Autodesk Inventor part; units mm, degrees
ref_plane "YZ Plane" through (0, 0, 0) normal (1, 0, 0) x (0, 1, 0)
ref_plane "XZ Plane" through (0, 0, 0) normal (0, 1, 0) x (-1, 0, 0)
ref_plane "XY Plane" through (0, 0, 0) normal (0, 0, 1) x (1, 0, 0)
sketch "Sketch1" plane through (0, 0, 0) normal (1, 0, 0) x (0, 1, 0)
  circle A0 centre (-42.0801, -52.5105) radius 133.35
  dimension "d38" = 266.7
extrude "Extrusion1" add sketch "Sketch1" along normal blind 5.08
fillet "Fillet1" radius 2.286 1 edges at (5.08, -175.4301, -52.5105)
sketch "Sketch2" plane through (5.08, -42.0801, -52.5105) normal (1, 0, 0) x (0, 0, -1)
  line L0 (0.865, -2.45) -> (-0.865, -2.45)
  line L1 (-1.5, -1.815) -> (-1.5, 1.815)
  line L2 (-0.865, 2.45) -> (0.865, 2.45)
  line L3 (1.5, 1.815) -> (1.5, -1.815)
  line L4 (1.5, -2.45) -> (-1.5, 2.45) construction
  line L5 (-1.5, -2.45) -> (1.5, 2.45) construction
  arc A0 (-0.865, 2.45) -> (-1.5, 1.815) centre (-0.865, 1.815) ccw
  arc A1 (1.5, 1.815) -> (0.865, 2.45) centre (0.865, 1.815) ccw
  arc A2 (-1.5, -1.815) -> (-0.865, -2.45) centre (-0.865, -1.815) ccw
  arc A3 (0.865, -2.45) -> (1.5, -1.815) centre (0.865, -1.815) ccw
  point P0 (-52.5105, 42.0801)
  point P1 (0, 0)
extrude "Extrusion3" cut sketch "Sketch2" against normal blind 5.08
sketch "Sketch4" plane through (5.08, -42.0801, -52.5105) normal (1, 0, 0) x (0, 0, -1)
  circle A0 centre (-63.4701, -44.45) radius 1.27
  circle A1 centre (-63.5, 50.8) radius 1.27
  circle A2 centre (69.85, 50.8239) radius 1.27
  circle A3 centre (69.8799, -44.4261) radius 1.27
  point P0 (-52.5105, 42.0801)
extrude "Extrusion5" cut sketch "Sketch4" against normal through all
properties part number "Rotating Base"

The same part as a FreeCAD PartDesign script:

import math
import FreeCAD as App
import Part
import Sketcher
Q = App.Units.Quantity


def edges_at(feature, points):
    """Names of the edges that pass closest to the given points."""
    edges = feature.Shape.Edges
    near = lambda p: min(range(len(edges)), key=lambda i: edges[i].distToShape(Part.Vertex(*p))[0])
    return sorted({f"Edge{near(p) + 1}" for p in points})

doc = App.newDocument("Part")
body = doc.addObject("PartDesign::Body", "Body")

sketch1 = body.newObject("Sketcher::SketchObject", "Sketch")
sketch1.AttachmentSupport = (doc.getObject("YZ_Plane"), [""])
sketch1.MapMode = "FlatFace"
sketch1.addGeometry(Part.Circle(App.Vector(-42, -53, 0), App.Vector(0, 0, 1), 133), False)
sketch1.addConstraint(Sketcher.Constraint("Diameter", 0, Q("10.5 in")))
sketch1.addConstraint(Sketcher.Constraint("DistanceX", 0, 3, -1, 1, Q("1.6567 in")))
sketch1.addConstraint(Sketcher.Constraint("DistanceY", 0, 3, -1, 1, Q("52.5105 mm")))
pad1 = body.newObject("PartDesign::Pad", "Pad")
pad1.Profile = sketch1
pad1.Length = Q("0.2 in")
doc.recompute()

fillet = body.newObject("PartDesign::Fillet", "Fillet")
fillet.Base = (pad1, edges_at(pad1, [(5.08, -175.43, -52.511)]))
fillet.Radius = Q("0.09 in")

sketch2 = body.newObject("Sketcher::SketchObject", "Sketch001")
sketch2.AttachmentSupport = (doc.getObject("YZ_Plane"), [""])
sketch2.MapMode = "FlatFace"
sketch2.AttachmentOffset = App.Placement(App.Vector(0, 0, 0.2 * 25.4), App.Rotation())
sketch2.addGeometry(Part.LineSegment(App.Vector(-44.5, -51.6, 0), App.Vector(-44.5, -53.4, 0)), False)
sketch2.addGeometry(Part.ArcOfCircle(Part.Circle(App.Vector(-43.9, -53.4, 0), App.Vector(0, 0, 1), 0.6), math.radians(180), math.radians(270)), False)
sketch2.addGeometry(Part.LineSegment(App.Vector(-43.9, -54, 0), App.Vector(-40.3, -54, 0)), False)
sketch2.addGeometry(Part.ArcOfCircle(Part.Circle(App.Vector(-40.3, -53.4, 0), App.Vector(0, 0, 1), 0.6), math.radians(-90), math.radians(0)), False)
sketch2.addGeometry(Part.LineSegment(App.Vector(-39.6, -53.4, 0), App.Vector(-39.6, -51.6, 0)), False)
sketch2.addGeometry(Part.ArcOfCircle(Part.Circle(App.Vector(-40.3, -51.6, 0), App.Vector(0, 0, 1), 0.6), math.radians(0), math.radians(90)), False)
sketch2.addGeometry(Part.LineSegment(App.Vector(-40.3, -51, 0), App.Vector(-43.9, -51, 0)), False)
sketch2.addGeometry(Part.ArcOfCircle(Part.Circle(App.Vector(-43.9, -51.6, 0), App.Vector(0, 0, 1), 0.6), math.radians(90), math.radians(180)), False)
sketch2.addConstraint(Sketcher.Constraint("Tangent", 0, 2, 1, 1))
sketch2.addConstraint(Sketcher.Constraint("Tangent", 1, 2, 2, 1))
sketch2.addConstraint(Sketcher.Constraint("Tangent", 2, 2, 3, 1))
sketch2.addConstraint(Sketcher.Constraint("Tangent", 3, 2, 4, 1))
sketch2.addConstraint(Sketcher.Constraint("Tangent", 4, 2, 5, 1))
sketch2.addConstraint(Sketcher.Constraint("Tangent", 5, 2, 6, 1))
sketch2.addConstraint(Sketcher.Constraint("Tangent", 6, 2, 7, 1))
sketch2.addConstraint(Sketcher.Constraint("Tangent", 7, 2, 0, 1))
sketch2.addConstraint(Sketcher.Constraint("Vertical", 0))
sketch2.addConstraint(Sketcher.Constraint("Horizontal", 2))
sketch2.addConstraint(Sketcher.Constraint("Vertical", 4))
sketch2.addConstraint(Sketcher.Constraint("Horizontal", 6))
sketch2.addConstraint(Sketcher.Constraint("Equal", 1, 3))
sketch2.addConstraint(Sketcher.Constraint("Equal", 3, 5))
sketch2.addConstraint(Sketcher.Constraint("Equal", 5, 7))
sketch2.addConstraint(Sketcher.Constraint("Radius", 1, Q("0.025 in")))
sketch2.addConstraint(Sketcher.Constraint("DistanceY", 0, 2, 0, 1, Q("0.0681 in")))
sketch2.addConstraint(Sketcher.Constraint("DistanceX", 2, 1, 2, 2, Q("3.63 mm")))
sketch2.addConstraint(Sketcher.Constraint("DistanceY", 1, 3, -1, 1, Q("2.1014 in")))
sketch2.addConstraint(Sketcher.Constraint("DistanceX", 1, 3, -1, 1, Q("43.895 mm")))
pocket1 = body.newObject("PartDesign::Pocket", "Pocket")
pocket1.Profile = sketch2
pocket1.Length = Q("0.2 in")

sketch3 = body.newObject("Sketcher::SketchObject", "Sketch002")
sketch3.AttachmentSupport = (doc.getObject("YZ_Plane"), [""])
sketch3.MapMode = "FlatFace"
sketch3.AttachmentOffset = App.Placement(App.Vector(0, 0, 0.2 * 25.4), App.Rotation())
sketch3.addGeometry(Part.Circle(App.Vector(-86.5, 11, 0), App.Vector(0, 0, 1), 1.3), False)
sketch3.addGeometry(Part.Circle(App.Vector(8.7, 11, 0), App.Vector(0, 0, 1), 1.3), False)
sketch3.addGeometry(Part.Circle(App.Vector(8.7, -122.4, 0), App.Vector(0, 0, 1), 1.3), False)
sketch3.addGeometry(Part.Circle(App.Vector(-86.5, -122.4, 0), App.Vector(0, 0, 1), 1.3), False)
sketch3.addConstraint(Sketcher.Constraint("Equal", 0, 1))
sketch3.addConstraint(Sketcher.Constraint("Equal", 1, 2))
sketch3.addConstraint(Sketcher.Constraint("Equal", 2, 3))
sketch3.addConstraint(Sketcher.Constraint("Diameter", 0, Q("0.1 in")))
sketch3.addConstraint(Sketcher.Constraint("DistanceX", 0, 3, 1, 3, Q("3.75 in")))
sketch3.addConstraint(Sketcher.Constraint("DistanceY", 2, 3, 1, 3, Q("5.25 in")))
sketch3.addConstraint(Sketcher.Constraint("DistanceX", 3, 3, 2, 3, Q("3.75 in")))
sketch3.addConstraint(Sketcher.Constraint("DistanceY", 3, 3, 0, 3, Q("5.25 in")))
sketch3.addConstraint(Sketcher.Constraint("DistanceX", 0, 3, -1, 1, Q("3.4067 in")))
sketch3.addConstraint(Sketcher.Constraint("DistanceY", -1, 1, 0, 3, Q("10.9596 mm")))
sketch3.addConstraint(Sketcher.Constraint("DistanceY", -1, 1, 1, 3, Q("10.9895 mm")))
sketch3.addConstraint(Sketcher.Constraint("DistanceX", -1, 1, 2, 3, Q("8.7438 mm")))
pocket2 = body.newObject("PartDesign::Pocket", "Pocket001")
pocket2.Profile = sketch3
pocket2.Type = "ThroughAll"

doc.recompute()
